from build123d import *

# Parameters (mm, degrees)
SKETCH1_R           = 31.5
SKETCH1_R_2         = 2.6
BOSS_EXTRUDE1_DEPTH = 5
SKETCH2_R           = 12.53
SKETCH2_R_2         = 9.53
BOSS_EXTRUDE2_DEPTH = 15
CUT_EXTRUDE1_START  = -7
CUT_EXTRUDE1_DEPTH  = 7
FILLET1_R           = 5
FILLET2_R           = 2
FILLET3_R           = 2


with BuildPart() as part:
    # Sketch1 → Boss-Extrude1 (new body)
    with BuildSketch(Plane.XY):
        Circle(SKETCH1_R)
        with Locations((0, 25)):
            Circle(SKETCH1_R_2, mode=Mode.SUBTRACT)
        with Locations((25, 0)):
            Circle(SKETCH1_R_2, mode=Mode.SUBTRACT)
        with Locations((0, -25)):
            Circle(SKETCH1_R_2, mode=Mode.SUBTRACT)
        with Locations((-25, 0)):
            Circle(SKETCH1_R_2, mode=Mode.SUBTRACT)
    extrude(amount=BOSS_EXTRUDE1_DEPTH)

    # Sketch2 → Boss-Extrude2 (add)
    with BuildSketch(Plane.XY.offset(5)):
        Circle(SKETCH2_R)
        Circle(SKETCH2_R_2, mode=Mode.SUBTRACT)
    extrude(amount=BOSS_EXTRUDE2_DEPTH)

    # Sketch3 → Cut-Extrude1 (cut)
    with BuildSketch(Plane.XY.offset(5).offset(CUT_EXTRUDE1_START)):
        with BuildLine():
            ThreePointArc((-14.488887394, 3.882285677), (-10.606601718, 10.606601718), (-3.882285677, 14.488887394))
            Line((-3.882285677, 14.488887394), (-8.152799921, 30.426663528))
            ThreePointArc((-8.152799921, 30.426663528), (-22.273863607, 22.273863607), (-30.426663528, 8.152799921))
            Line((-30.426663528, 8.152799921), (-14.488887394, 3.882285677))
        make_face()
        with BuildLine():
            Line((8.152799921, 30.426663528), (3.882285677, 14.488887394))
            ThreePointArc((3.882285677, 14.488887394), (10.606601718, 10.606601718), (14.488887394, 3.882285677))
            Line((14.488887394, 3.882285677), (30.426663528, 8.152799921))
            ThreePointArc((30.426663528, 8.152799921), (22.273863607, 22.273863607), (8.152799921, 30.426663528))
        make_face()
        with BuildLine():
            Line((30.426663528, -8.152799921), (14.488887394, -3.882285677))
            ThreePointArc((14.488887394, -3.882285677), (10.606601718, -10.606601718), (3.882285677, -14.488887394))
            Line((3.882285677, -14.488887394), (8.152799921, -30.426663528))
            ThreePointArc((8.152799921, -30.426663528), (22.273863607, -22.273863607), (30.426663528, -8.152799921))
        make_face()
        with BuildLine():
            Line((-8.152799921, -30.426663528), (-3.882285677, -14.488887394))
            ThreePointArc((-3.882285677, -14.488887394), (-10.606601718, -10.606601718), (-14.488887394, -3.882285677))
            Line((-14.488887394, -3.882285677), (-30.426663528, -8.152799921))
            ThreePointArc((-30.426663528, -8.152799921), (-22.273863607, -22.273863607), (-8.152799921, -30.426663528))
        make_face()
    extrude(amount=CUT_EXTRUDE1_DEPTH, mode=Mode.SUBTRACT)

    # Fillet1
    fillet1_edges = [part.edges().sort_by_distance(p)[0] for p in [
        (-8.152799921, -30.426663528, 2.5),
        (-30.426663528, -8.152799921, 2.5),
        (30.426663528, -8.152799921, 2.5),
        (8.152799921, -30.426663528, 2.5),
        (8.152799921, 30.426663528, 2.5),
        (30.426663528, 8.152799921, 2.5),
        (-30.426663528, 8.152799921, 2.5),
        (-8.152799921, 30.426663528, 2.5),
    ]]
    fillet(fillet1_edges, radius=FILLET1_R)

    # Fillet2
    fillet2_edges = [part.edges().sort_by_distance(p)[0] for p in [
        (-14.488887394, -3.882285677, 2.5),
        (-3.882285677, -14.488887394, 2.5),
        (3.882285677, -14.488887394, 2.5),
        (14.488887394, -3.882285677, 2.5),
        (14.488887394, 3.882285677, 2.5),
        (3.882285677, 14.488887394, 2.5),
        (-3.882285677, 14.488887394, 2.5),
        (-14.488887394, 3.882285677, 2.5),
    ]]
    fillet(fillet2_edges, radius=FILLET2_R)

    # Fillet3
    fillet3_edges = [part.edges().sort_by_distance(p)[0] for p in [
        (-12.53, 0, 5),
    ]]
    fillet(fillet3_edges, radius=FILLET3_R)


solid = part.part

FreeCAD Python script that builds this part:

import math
import FreeCAD as App
import Part
import Sketcher

V = App.Vector
Q = App.Units.Quantity


def edges_at(feature, points):
    """Names of the edges that pass closest to the given points."""
    edges = feature.Shape.Edges
    near = lambda p: min(range(len(edges)), key=lambda i: edges[i].distToShape(Part.Vertex(*p))[0])
    return sorted({f"Edge{near(p) + 1}" for p in points})

doc = App.newDocument("Part")
body = doc.addObject("PartDesign::Body", "Body")

# Sketch on XY plane
sketch1 = body.newObject("Sketcher::SketchObject", "Sketch")
sketch1.AttachmentSupport = (doc.getObject("XY_Plane"), [""])
sketch1.MapMode = "FlatFace"
sketch1.addGeometry([
    Part.Circle(V(0, 0, 0), V(0, 0, 1), 31.5),  # 0
    Part.Circle(V(0, -25, 0), V(0, 0, 1), 2.6),  # 1
    Part.Circle(V(-25, 0, 0), V(0, 0, 1), 2.6),  # 2
    Part.Circle(V(25, 0, 0), V(0, 0, 1), 2.6),  # 3
    Part.Circle(V(0, 25, 0), V(0, 0, 1), 2.6),  # 4
], False)
sketch1.addConstraint([
    Sketcher.Constraint("Coincident", 0, 3, -1, 1),
    Sketcher.Constraint("Equal", 1, 2),
    Sketcher.Constraint("Equal", 2, 3),
    Sketcher.Constraint("Equal", 3, 4),
    Sketcher.Constraint("Symmetric", 2, 3, 3, 3, -1, 1),
    Sketcher.Constraint("Symmetric", 1, 3, 4, 3, -1, 1),
    Sketcher.Constraint("PointOnObject", 1, 3, -2),
    Sketcher.Constraint("PointOnObject", 2, 3, -1),
    Sketcher.Constraint("Diameter", 0, 63.0),
    Sketcher.Constraint("Diameter", 1, 5.2),
    Sketcher.Constraint("DistanceY", 1, 3, -1, 1, 25.0),
    Sketcher.Constraint("DistanceX", 2, 3, -1, 1, 25.0),
])
pad1 = body.newObject("PartDesign::Pad", "Pad")
pad1.Profile = sketch1
pad1.Length = 5

# Sketch on XY plane
sketch2 = body.newObject("Sketcher::SketchObject", "Sketch001")
sketch2.AttachmentSupport = (doc.getObject("XY_Plane"), [""])
sketch2.MapMode = "FlatFace"
sketch2.AttachmentOffset = App.Placement(V(0, 0, 5), App.Rotation())
sketch2.addGeometry([
    Part.Circle(V(0, 0, 0), V(0, 0, 1), 13),
    Part.Circle(V(0, 0, 0), V(0, 0, 1), 10),
], False)
sketch2.addConstraint([
    Sketcher.Constraint("Coincident", 0, 3, -1, 1),
    Sketcher.Constraint("Coincident", 1, 3, -1, 1),
    Sketcher.Constraint("Diameter", 0, 25.06),
    Sketcher.Constraint("Diameter", 1, 19.06),
])
pad2 = body.newObject("PartDesign::Pad", "Pad001")
pad2.Profile = sketch2
pad2.Length = 15

# Sketch on XY plane
sketch3 = body.newObject("Sketcher::SketchObject", "Sketch002")
sketch3.AttachmentSupport = (doc.getObject("XY_Plane"), [""])
sketch3.MapMode = "FlatFace"
sketch3.AttachmentOffset = App.Placement(V(0, 0, -2), App.Rotation())
sketch3.addGeometry([
    Part.ArcOfCircle(Part.Circle(V(0, 0, 0), V(0, 0, 1), 15), math.radians(105), math.radians(165)),  # 0
    Part.LineSegment(V(-4, 14, 0), V(-8, 30, 0)),  # 1
    Part.ArcOfCircle(Part.Circle(V(0, 0, 0), V(0, 0, 1), 32), math.radians(105), math.radians(165)),  # 2
    Part.LineSegment(V(-30, 8, 0), V(-14, 4, 0)),  # 3
    Part.LineSegment(V(8, 30, 0), V(4, 14, 0)),  # 4
    Part.ArcOfCircle(Part.Circle(V(0, 0, 0), V(0, 0, 1), 15), math.radians(15), math.radians(75)),  # 5
    Part.LineSegment(V(14, 4, 0), V(30, 8, 0)),  # 6
    Part.ArcOfCircle(Part.Circle(V(0, 0, 0), V(0, 0, 1), 32), math.radians(15), math.radians(75)),  # 7
    Part.LineSegment(V(30, -8, 0), V(14, -4, 0)),  # 8
    Part.ArcOfCircle(Part.Circle(V(0, 0, 0), V(0, 0, 1), 15), math.radians(-75), math.radians(-15)),  # 9
    Part.LineSegment(V(4, -14, 0), V(8, -30, 0)),  # 10
    Part.ArcOfCircle(Part.Circle(V(0, 0, 0), V(0, 0, 1), 32), math.radians(-75), math.radians(-15)),  # 11
    Part.LineSegment(V(-8, -30, 0), V(-4, -14, 0)),  # 12
    Part.ArcOfCircle(Part.Circle(V(0, 0, 0), V(0, 0, 1), 15), math.radians(-165), math.radians(-105)),  # 13
    Part.LineSegment(V(-14, -4, 0), V(-30, -8, 0)),  # 14
    Part.ArcOfCircle(Part.Circle(V(0, 0, 0), V(0, 0, 1), 32), math.radians(-165), math.radians(-105)),  # 15
], False)
sketch3.addConstraint([
    Sketcher.Constraint("Coincident", 0, 1, 1, 1),
    Sketcher.Constraint("Coincident", 1, 2, 2, 1),
    Sketcher.Constraint("Coincident", 2, 2, 3, 1),
    Sketcher.Constraint("Coincident", 3, 2, 0, 2),
    Sketcher.Constraint("Coincident", 4, 2, 5, 2),
    Sketcher.Constraint("Coincident", 5, 1, 6, 1),
    Sketcher.Constraint("Coincident", 6, 2, 7, 1),
    Sketcher.Constraint("Coincident", 7, 2, 4, 1),
    Sketcher.Constraint("Coincident", 8, 2, 9, 2),
    Sketcher.Constraint("Coincident", 9, 1, 10, 1),
    Sketcher.Constraint("Coincident", 10, 2, 11, 1),
    Sketcher.Constraint("Coincident", 11, 2, 8, 1),
    Sketcher.Constraint("Coincident", 12, 2, 13, 2),
    Sketcher.Constraint("Coincident", 13, 1, 14, 1),
    Sketcher.Constraint("Coincident", 14, 2, 15, 1),
    Sketcher.Constraint("Coincident", 15, 2, 12, 1),
    Sketcher.Constraint("Coincident", 0, 3, -1, 1),
    Sketcher.Constraint("Coincident", 2, 3, -1, 1),
    Sketcher.Constraint("Coincident", 5, 3, -1, 1),
    Sketcher.Constraint("Coincident", 7, 3, -1, 1),
    Sketcher.Constraint("Coincident", 9, 3, -1, 1),
    Sketcher.Constraint("Coincident", 11, 3, -1, 1),
    Sketcher.Constraint("Coincident", 13, 3, -1, 1),
    Sketcher.Constraint("Coincident", 15, 3, -1, 1),
    Sketcher.Constraint("Equal", 0, 5),
    Sketcher.Constraint("Equal", 2, 7),
    Sketcher.Constraint("Equal", 5, 9),
    Sketcher.Constraint("Equal", 7, 11),
    Sketcher.Constraint("Equal", 9, 13),
    Sketcher.Constraint("Equal", 11, 15),
    Sketcher.Constraint("Perpendicular", 3, 4),
    Sketcher.Constraint("Perpendicular", 1, 6),
    Sketcher.Constraint("Perpendicular", 4, 8),
    Sketcher.Constraint("Perpendicular", 6, 10),
    Sketcher.Constraint("Perpendicular", 8, 12),
    Sketcher.Constraint("Perpendicular", 10, 14),
    Sketcher.Constraint("Horizontal", 0, 1, 4, 2),
    Sketcher.Constraint("Horizontal", 3, 2, 5, 1),
    Sketcher.Constraint("Horizontal", 2, 2, 6, 2),
    Sketcher.Constraint("Horizontal", 9, 1, 12, 2),
    Sketcher.Constraint("Horizontal", 8, 2, 13, 1),
    Sketcher.Constraint("Vertical", 5, 1, 8, 2),
    Sketcher.Constraint("Vertical", 4, 2, 9, 1),
    Sketcher.Constraint("Radius", 0, 15.0),
    Sketcher.Constraint("Radius", 2, 31.5),
    Sketcher.Constraint("Angle", 1, Q("105 deg")),
    Sketcher.Constraint("DistanceX", 1, 2, -1, 1, 8.1528),
    Sketcher.Constraint("DistanceY", -1, 1, 2, 2, 8.1528),
])
pocket1 = body.newObject("PartDesign::Pocket", "Pocket")
pocket1.Profile = sketch3
pocket1.Length = 7
pocket1.Reversed = True
doc.recompute()

fillet = body.newObject("PartDesign::Fillet", "Fillet")
fillet.Base = (pocket1, edges_at(pocket1, [
    (-8.153, -30.427, 2.5),
    (-30.427, -8.153, 2.5),
    (30.427, -8.153, 2.5),
    (8.153, -30.427, 2.5),
    (8.153, 30.427, 2.5),
    (30.427, 8.153, 2.5),
    (-30.427, 8.153, 2.5),
    (-8.153, 30.427, 2.5),
]))
fillet.Radius = 5
doc.recompute()

fillet2 = body.newObject("PartDesign::Fillet", "Fillet001")
fillet2.Base = (fillet, edges_at(fillet, [
    (-14.489, -3.882, 2.5),
    (-3.882, -14.489, 2.5),
    (3.882, -14.489, 2.5),
    (14.489, -3.882, 2.5),
    (14.489, 3.882, 2.5),
    (3.882, 14.489, 2.5),
    (-3.882, 14.489, 2.5),
    (-14.489, 3.882, 2.5),
]))
fillet2.Radius = 2
doc.recompute()

fillet3 = body.newObject("PartDesign::Fillet", "Fillet002")
fillet3.Base = (fillet2, edges_at(fillet2, [(-12.53, 0, 5)]))
fillet3.Radius = 2

doc.recompute()
